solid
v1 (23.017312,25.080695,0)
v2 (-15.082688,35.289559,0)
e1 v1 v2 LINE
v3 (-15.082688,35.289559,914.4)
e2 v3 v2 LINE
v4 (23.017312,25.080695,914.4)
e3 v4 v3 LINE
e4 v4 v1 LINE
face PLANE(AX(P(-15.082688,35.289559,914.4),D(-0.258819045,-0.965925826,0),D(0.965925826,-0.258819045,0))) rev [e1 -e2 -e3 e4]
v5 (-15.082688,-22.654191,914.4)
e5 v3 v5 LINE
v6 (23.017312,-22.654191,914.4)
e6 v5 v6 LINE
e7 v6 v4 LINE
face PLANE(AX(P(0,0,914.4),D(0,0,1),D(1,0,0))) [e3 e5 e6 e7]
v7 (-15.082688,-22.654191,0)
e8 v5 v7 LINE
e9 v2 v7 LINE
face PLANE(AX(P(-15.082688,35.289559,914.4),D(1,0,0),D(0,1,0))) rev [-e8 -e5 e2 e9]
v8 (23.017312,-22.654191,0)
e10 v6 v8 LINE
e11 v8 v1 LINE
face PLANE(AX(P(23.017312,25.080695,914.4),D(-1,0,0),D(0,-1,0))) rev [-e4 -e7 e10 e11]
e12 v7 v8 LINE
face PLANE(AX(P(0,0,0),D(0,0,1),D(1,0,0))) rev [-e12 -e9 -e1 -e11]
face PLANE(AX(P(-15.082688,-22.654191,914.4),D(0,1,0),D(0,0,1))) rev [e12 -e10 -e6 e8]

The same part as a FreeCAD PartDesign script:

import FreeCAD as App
import Part
import Sketcher
from FreeCAD import Vector
Q = App.Units.Quantity


def add_polygon(sketch, points):
    """Adds a closed chain of lines whose ends are joined by coincident constraints."""
    first, n = sketch.GeometryCount, len(points)
    for a, b in zip(points, points[1:] + points[:1]):
        sketch.addGeometry(Part.LineSegment(App.Vector(*a, 0), App.Vector(*b, 0)), False)
    for i in range(n):
        sketch.addConstraint(Sketcher.Constraint("Coincident", first + i, 2, first + (i + 1) % n, 1))

doc = App.newDocument("Part")
body = doc.addObject("PartDesign::Body", "Body")

# Sketch on XY plane
sketch1 = body.newObject("Sketcher::SketchObject", "Sketch")
sketch1.AttachmentSupport = (doc.getObject("XY_Plane"), [""])
sketch1.MapMode = "FlatFace"
add_polygon(sketch1, [(23, 25), (-15, 35), (-15, -23), (23, -23)])  # lines 0-3
sketch1.addConstraint([
    Sketcher.Constraint("Vertical", 1),
    Sketcher.Constraint("Horizontal", 2),
    Sketcher.Constraint("Vertical", 3),
    Sketcher.Constraint("DistanceX", 2, 1, 2, 2, Q("1.5 in")),
    Sketcher.Constraint("Angle", 0, Q("165 deg")),
    Sketcher.Constraint("DistanceY", 1, 2, 1, 1, Q("2.28125 in")),
    Sketcher.Constraint("DistanceX", 0, 2, -1, 1, Q("15.082688 mm")),
    Sketcher.Constraint("DistanceY", -1, 1, 0, 2, Q("35.289559 mm")),
])
pad1 = body.newObject("PartDesign::Pad", "Pad")
pad1.Profile = sketch1
pad1.Length = Q("36 in")

doc.recompute()
